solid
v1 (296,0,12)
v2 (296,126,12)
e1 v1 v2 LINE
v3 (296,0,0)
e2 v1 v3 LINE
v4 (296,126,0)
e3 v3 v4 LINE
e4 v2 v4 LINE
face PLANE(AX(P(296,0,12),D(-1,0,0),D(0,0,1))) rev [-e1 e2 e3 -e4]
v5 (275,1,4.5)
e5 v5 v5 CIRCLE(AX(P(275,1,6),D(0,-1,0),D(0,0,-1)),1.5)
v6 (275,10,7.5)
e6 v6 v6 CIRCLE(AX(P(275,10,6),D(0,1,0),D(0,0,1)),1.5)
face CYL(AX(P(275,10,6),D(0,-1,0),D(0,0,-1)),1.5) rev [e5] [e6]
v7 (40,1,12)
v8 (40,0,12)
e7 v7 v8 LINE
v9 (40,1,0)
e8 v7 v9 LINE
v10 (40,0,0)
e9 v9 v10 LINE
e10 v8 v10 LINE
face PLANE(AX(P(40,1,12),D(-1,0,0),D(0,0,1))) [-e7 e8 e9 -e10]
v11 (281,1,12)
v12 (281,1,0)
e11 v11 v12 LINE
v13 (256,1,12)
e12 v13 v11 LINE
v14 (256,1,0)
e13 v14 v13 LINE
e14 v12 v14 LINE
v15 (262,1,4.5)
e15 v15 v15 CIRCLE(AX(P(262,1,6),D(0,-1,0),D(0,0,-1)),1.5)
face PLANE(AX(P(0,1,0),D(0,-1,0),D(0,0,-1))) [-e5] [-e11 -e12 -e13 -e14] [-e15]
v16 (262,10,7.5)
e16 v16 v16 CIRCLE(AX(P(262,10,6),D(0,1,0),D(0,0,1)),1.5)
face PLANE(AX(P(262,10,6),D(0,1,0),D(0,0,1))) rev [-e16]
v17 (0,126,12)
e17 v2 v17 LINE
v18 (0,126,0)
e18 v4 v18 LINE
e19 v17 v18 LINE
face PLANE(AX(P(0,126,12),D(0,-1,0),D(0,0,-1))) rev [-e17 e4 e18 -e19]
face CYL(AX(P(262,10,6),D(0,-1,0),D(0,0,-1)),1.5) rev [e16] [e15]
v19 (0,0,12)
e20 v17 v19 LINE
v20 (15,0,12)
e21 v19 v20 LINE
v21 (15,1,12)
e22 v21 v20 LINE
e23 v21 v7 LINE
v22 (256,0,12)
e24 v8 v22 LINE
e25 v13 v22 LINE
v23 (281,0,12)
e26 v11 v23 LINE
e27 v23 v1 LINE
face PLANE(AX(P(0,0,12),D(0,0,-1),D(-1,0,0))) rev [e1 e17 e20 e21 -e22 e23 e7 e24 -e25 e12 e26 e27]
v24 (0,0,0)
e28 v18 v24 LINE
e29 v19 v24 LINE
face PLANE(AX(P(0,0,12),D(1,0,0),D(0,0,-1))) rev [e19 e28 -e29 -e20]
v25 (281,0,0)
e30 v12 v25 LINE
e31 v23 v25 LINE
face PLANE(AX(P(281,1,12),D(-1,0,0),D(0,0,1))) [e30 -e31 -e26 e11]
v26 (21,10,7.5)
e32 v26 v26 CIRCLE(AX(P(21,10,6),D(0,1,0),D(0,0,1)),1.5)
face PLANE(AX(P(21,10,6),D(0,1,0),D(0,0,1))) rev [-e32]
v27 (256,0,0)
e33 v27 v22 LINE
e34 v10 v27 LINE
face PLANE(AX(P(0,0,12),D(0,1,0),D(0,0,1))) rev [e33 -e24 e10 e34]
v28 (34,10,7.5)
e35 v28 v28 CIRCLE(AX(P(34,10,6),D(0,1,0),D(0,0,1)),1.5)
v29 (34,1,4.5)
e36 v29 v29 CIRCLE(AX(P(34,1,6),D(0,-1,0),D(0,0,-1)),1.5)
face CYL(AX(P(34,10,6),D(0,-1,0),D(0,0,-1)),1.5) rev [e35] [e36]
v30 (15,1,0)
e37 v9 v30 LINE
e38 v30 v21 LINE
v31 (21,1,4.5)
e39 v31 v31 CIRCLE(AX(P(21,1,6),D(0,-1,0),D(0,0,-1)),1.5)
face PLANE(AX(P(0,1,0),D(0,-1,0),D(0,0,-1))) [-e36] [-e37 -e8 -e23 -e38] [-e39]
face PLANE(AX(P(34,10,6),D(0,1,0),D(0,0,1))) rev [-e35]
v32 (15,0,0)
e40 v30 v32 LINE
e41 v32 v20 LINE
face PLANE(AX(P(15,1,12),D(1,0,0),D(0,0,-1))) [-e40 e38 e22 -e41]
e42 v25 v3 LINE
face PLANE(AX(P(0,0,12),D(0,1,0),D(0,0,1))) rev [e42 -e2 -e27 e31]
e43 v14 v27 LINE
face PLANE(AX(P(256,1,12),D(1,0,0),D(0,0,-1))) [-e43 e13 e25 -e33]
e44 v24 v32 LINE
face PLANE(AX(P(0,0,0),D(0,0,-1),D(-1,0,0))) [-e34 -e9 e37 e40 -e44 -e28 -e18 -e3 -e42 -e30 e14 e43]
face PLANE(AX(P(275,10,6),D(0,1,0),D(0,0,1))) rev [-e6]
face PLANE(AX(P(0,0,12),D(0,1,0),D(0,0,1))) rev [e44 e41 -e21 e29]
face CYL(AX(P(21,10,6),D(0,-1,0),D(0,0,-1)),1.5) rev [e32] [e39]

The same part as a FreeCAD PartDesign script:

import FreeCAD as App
import Part
import Sketcher


def add_polygon(sketch, points):
    """Adds a closed chain of lines whose ends are joined by coincident constraints."""
    first, n = sketch.GeometryCount, len(points)
    for a, b in zip(points, points[1:] + points[:1]):
        sketch.addGeometry(Part.LineSegment(App.Vector(*a, 0), App.Vector(*b, 0)), False)
    for i in range(n):
        sketch.addConstraint(Sketcher.Constraint("Coincident", first + i, 2, first + (i + 1) % n, 1))

doc = App.newDocument("Part")
body = doc.addObject("PartDesign::Body", "Body")

# Sketch on XY plane
sketch1 = doc.addObject("Sketcher::SketchObject", "Sketch")
body.addObject(sketch1)
sketch1.AttachmentSupport = (doc.XY_Plane, [""])
sketch1.MapMode = "FlatFace"
add_polygon(sketch1, [(0, 126), (0, 0), (296, 0), (296, 126)])  # lines 0-3
sketch1.addConstraint(Sketcher.Constraint("Vertical", 0))
sketch1.addConstraint(Sketcher.Constraint("Horizontal", 1))
sketch1.addConstraint(Sketcher.Constraint("Vertical", 2))
sketch1.addConstraint(Sketcher.Constraint("Horizontal", 3))
sketch1.addConstraint(Sketcher.Constraint("Coincident", 0, 2, -1, 1))
sketch1.addConstraint(Sketcher.Constraint("DistanceX", 1, 1, 1, 2, 296.0))
sketch1.addConstraint(Sketcher.Constraint("DistanceY", 0, 2, 0, 1, 126.0))
pad1 = doc.addObject("PartDesign::Pad", "Pad")
body.addObject(pad1)
pad1.Profile = sketch1
pad1.Length = 12

# Sketch on XZ plane
sketch2 = doc.addObject("Sketcher::SketchObject", "Sketch001")
body.addObject(sketch2)
sketch2.AttachmentSupport = (doc.XZ_Plane, [""])
sketch2.MapMode = "FlatFace"
sketch2.addGeometry(Part.Circle(App.Vector(21, 6, 0), App.Vector(0, 0, 1), 1.5), False)
sketch2.addGeometry(Part.Circle(App.Vector(34, 6, 0), App.Vector(0, 0, 1), 1.5), False)
sketch2.addGeometry(Part.Circle(App.Vector(275, 6, 0), App.Vector(0, 0, 1), 1.5), False)
sketch2.addGeometry(Part.Circle(App.Vector(262, 6, 0), App.Vector(0, 0, 1), 1.5), False)
sketch2.addConstraint(Sketcher.Constraint("Equal", 0, 1))
sketch2.addConstraint(Sketcher.Constraint("Equal", 1, 2))
sketch2.addConstraint(Sketcher.Constraint("Equal", 2, 3))
sketch2.addConstraint(Sketcher.Constraint("Horizontal", 0, 3, 1, 3))
sketch2.addConstraint(Sketcher.Constraint("Horizontal", 1, 3, 2, 3))
sketch2.addConstraint(Sketcher.Constraint("Horizontal", 2, 3, 3, 3))
sketch2.addConstraint(Sketcher.Constraint("Diameter", 0, 3.0))
sketch2.addConstraint(Sketcher.Constraint("DistanceX", -1, 1, 0, 3, 21.0))
sketch2.addConstraint(Sketcher.Constraint("DistanceY", -1, 1, 0, 3, 6.0))
sketch2.addConstraint(Sketcher.Constraint("DistanceX", -1, 1, 1, 3, 34.0))
sketch2.addConstraint(Sketcher.Constraint("DistanceX", -1, 1, 2, 3, 275.0))
sketch2.addConstraint(Sketcher.Constraint("DistanceX", -1, 1, 3, 3, 262.0))
pocket1 = doc.addObject("PartDesign::Pocket", "Pocket")
body.addObject(pocket1)
pocket1.Profile = sketch2
pocket1.Length = 10

# Sketch on XZ plane
sketch3 = doc.addObject("Sketcher::SketchObject", "Sketch002")
body.addObject(sketch3)
sketch3.AttachmentSupport = (doc.XZ_Plane, [""])
sketch3.MapMode = "FlatFace"
add_polygon(sketch3, [(15, 0), (15, 12), (40, 12), (40, 0)])  # lines 0-3
add_polygon(sketch3, [(256, 0), (256, 12), (281, 12), (281, 0)])  # lines 4-7
sketch3.addConstraint(Sketcher.Constraint("Vertical", 0))
sketch3.addConstraint(Sketcher.Constraint("Horizontal", 1))
sketch3.addConstraint(Sketcher.Constraint("Vertical", 2))
sketch3.addConstraint(Sketcher.Constraint("Horizontal", 3))
sketch3.addConstraint(Sketcher.Constraint("Vertical", 4))
sketch3.addConstraint(Sketcher.Constraint("Horizontal", 5))
sketch3.addConstraint(Sketcher.Constraint("Vertical", 6))
sketch3.addConstraint(Sketcher.Constraint("Horizontal", 7))
sketch3.addConstraint(Sketcher.Constraint("PointOnObject", 2, 2, -1))
sketch3.addConstraint(Sketcher.Constraint("PointOnObject", 6, 2, -1))
sketch3.addConstraint(Sketcher.Constraint("Horizontal", 1, 2, 4, 2))
sketch3.addConstraint(Sketcher.Constraint("Equal", 3, 5))
sketch3.addConstraint(Sketcher.Constraint("DistanceX", 1, 1, 1, 2, 25.0))
sketch3.addConstraint(Sketcher.Constraint("DistanceY", 0, 1, 0, 2, 12.0))
sketch3.addConstraint(Sketcher.Constraint("DistanceX", -1, 1, 0, 2, 15.0))
sketch3.addConstraint(Sketcher.Constraint("DistanceX", -1, 1, 4, 2, 256.0))
pocket2 = doc.addObject("PartDesign::Pocket", "Pocket001")
body.addObject(pocket2)
pocket2.Profile = sketch3
pocket2.Length = 1

doc.recompute()
